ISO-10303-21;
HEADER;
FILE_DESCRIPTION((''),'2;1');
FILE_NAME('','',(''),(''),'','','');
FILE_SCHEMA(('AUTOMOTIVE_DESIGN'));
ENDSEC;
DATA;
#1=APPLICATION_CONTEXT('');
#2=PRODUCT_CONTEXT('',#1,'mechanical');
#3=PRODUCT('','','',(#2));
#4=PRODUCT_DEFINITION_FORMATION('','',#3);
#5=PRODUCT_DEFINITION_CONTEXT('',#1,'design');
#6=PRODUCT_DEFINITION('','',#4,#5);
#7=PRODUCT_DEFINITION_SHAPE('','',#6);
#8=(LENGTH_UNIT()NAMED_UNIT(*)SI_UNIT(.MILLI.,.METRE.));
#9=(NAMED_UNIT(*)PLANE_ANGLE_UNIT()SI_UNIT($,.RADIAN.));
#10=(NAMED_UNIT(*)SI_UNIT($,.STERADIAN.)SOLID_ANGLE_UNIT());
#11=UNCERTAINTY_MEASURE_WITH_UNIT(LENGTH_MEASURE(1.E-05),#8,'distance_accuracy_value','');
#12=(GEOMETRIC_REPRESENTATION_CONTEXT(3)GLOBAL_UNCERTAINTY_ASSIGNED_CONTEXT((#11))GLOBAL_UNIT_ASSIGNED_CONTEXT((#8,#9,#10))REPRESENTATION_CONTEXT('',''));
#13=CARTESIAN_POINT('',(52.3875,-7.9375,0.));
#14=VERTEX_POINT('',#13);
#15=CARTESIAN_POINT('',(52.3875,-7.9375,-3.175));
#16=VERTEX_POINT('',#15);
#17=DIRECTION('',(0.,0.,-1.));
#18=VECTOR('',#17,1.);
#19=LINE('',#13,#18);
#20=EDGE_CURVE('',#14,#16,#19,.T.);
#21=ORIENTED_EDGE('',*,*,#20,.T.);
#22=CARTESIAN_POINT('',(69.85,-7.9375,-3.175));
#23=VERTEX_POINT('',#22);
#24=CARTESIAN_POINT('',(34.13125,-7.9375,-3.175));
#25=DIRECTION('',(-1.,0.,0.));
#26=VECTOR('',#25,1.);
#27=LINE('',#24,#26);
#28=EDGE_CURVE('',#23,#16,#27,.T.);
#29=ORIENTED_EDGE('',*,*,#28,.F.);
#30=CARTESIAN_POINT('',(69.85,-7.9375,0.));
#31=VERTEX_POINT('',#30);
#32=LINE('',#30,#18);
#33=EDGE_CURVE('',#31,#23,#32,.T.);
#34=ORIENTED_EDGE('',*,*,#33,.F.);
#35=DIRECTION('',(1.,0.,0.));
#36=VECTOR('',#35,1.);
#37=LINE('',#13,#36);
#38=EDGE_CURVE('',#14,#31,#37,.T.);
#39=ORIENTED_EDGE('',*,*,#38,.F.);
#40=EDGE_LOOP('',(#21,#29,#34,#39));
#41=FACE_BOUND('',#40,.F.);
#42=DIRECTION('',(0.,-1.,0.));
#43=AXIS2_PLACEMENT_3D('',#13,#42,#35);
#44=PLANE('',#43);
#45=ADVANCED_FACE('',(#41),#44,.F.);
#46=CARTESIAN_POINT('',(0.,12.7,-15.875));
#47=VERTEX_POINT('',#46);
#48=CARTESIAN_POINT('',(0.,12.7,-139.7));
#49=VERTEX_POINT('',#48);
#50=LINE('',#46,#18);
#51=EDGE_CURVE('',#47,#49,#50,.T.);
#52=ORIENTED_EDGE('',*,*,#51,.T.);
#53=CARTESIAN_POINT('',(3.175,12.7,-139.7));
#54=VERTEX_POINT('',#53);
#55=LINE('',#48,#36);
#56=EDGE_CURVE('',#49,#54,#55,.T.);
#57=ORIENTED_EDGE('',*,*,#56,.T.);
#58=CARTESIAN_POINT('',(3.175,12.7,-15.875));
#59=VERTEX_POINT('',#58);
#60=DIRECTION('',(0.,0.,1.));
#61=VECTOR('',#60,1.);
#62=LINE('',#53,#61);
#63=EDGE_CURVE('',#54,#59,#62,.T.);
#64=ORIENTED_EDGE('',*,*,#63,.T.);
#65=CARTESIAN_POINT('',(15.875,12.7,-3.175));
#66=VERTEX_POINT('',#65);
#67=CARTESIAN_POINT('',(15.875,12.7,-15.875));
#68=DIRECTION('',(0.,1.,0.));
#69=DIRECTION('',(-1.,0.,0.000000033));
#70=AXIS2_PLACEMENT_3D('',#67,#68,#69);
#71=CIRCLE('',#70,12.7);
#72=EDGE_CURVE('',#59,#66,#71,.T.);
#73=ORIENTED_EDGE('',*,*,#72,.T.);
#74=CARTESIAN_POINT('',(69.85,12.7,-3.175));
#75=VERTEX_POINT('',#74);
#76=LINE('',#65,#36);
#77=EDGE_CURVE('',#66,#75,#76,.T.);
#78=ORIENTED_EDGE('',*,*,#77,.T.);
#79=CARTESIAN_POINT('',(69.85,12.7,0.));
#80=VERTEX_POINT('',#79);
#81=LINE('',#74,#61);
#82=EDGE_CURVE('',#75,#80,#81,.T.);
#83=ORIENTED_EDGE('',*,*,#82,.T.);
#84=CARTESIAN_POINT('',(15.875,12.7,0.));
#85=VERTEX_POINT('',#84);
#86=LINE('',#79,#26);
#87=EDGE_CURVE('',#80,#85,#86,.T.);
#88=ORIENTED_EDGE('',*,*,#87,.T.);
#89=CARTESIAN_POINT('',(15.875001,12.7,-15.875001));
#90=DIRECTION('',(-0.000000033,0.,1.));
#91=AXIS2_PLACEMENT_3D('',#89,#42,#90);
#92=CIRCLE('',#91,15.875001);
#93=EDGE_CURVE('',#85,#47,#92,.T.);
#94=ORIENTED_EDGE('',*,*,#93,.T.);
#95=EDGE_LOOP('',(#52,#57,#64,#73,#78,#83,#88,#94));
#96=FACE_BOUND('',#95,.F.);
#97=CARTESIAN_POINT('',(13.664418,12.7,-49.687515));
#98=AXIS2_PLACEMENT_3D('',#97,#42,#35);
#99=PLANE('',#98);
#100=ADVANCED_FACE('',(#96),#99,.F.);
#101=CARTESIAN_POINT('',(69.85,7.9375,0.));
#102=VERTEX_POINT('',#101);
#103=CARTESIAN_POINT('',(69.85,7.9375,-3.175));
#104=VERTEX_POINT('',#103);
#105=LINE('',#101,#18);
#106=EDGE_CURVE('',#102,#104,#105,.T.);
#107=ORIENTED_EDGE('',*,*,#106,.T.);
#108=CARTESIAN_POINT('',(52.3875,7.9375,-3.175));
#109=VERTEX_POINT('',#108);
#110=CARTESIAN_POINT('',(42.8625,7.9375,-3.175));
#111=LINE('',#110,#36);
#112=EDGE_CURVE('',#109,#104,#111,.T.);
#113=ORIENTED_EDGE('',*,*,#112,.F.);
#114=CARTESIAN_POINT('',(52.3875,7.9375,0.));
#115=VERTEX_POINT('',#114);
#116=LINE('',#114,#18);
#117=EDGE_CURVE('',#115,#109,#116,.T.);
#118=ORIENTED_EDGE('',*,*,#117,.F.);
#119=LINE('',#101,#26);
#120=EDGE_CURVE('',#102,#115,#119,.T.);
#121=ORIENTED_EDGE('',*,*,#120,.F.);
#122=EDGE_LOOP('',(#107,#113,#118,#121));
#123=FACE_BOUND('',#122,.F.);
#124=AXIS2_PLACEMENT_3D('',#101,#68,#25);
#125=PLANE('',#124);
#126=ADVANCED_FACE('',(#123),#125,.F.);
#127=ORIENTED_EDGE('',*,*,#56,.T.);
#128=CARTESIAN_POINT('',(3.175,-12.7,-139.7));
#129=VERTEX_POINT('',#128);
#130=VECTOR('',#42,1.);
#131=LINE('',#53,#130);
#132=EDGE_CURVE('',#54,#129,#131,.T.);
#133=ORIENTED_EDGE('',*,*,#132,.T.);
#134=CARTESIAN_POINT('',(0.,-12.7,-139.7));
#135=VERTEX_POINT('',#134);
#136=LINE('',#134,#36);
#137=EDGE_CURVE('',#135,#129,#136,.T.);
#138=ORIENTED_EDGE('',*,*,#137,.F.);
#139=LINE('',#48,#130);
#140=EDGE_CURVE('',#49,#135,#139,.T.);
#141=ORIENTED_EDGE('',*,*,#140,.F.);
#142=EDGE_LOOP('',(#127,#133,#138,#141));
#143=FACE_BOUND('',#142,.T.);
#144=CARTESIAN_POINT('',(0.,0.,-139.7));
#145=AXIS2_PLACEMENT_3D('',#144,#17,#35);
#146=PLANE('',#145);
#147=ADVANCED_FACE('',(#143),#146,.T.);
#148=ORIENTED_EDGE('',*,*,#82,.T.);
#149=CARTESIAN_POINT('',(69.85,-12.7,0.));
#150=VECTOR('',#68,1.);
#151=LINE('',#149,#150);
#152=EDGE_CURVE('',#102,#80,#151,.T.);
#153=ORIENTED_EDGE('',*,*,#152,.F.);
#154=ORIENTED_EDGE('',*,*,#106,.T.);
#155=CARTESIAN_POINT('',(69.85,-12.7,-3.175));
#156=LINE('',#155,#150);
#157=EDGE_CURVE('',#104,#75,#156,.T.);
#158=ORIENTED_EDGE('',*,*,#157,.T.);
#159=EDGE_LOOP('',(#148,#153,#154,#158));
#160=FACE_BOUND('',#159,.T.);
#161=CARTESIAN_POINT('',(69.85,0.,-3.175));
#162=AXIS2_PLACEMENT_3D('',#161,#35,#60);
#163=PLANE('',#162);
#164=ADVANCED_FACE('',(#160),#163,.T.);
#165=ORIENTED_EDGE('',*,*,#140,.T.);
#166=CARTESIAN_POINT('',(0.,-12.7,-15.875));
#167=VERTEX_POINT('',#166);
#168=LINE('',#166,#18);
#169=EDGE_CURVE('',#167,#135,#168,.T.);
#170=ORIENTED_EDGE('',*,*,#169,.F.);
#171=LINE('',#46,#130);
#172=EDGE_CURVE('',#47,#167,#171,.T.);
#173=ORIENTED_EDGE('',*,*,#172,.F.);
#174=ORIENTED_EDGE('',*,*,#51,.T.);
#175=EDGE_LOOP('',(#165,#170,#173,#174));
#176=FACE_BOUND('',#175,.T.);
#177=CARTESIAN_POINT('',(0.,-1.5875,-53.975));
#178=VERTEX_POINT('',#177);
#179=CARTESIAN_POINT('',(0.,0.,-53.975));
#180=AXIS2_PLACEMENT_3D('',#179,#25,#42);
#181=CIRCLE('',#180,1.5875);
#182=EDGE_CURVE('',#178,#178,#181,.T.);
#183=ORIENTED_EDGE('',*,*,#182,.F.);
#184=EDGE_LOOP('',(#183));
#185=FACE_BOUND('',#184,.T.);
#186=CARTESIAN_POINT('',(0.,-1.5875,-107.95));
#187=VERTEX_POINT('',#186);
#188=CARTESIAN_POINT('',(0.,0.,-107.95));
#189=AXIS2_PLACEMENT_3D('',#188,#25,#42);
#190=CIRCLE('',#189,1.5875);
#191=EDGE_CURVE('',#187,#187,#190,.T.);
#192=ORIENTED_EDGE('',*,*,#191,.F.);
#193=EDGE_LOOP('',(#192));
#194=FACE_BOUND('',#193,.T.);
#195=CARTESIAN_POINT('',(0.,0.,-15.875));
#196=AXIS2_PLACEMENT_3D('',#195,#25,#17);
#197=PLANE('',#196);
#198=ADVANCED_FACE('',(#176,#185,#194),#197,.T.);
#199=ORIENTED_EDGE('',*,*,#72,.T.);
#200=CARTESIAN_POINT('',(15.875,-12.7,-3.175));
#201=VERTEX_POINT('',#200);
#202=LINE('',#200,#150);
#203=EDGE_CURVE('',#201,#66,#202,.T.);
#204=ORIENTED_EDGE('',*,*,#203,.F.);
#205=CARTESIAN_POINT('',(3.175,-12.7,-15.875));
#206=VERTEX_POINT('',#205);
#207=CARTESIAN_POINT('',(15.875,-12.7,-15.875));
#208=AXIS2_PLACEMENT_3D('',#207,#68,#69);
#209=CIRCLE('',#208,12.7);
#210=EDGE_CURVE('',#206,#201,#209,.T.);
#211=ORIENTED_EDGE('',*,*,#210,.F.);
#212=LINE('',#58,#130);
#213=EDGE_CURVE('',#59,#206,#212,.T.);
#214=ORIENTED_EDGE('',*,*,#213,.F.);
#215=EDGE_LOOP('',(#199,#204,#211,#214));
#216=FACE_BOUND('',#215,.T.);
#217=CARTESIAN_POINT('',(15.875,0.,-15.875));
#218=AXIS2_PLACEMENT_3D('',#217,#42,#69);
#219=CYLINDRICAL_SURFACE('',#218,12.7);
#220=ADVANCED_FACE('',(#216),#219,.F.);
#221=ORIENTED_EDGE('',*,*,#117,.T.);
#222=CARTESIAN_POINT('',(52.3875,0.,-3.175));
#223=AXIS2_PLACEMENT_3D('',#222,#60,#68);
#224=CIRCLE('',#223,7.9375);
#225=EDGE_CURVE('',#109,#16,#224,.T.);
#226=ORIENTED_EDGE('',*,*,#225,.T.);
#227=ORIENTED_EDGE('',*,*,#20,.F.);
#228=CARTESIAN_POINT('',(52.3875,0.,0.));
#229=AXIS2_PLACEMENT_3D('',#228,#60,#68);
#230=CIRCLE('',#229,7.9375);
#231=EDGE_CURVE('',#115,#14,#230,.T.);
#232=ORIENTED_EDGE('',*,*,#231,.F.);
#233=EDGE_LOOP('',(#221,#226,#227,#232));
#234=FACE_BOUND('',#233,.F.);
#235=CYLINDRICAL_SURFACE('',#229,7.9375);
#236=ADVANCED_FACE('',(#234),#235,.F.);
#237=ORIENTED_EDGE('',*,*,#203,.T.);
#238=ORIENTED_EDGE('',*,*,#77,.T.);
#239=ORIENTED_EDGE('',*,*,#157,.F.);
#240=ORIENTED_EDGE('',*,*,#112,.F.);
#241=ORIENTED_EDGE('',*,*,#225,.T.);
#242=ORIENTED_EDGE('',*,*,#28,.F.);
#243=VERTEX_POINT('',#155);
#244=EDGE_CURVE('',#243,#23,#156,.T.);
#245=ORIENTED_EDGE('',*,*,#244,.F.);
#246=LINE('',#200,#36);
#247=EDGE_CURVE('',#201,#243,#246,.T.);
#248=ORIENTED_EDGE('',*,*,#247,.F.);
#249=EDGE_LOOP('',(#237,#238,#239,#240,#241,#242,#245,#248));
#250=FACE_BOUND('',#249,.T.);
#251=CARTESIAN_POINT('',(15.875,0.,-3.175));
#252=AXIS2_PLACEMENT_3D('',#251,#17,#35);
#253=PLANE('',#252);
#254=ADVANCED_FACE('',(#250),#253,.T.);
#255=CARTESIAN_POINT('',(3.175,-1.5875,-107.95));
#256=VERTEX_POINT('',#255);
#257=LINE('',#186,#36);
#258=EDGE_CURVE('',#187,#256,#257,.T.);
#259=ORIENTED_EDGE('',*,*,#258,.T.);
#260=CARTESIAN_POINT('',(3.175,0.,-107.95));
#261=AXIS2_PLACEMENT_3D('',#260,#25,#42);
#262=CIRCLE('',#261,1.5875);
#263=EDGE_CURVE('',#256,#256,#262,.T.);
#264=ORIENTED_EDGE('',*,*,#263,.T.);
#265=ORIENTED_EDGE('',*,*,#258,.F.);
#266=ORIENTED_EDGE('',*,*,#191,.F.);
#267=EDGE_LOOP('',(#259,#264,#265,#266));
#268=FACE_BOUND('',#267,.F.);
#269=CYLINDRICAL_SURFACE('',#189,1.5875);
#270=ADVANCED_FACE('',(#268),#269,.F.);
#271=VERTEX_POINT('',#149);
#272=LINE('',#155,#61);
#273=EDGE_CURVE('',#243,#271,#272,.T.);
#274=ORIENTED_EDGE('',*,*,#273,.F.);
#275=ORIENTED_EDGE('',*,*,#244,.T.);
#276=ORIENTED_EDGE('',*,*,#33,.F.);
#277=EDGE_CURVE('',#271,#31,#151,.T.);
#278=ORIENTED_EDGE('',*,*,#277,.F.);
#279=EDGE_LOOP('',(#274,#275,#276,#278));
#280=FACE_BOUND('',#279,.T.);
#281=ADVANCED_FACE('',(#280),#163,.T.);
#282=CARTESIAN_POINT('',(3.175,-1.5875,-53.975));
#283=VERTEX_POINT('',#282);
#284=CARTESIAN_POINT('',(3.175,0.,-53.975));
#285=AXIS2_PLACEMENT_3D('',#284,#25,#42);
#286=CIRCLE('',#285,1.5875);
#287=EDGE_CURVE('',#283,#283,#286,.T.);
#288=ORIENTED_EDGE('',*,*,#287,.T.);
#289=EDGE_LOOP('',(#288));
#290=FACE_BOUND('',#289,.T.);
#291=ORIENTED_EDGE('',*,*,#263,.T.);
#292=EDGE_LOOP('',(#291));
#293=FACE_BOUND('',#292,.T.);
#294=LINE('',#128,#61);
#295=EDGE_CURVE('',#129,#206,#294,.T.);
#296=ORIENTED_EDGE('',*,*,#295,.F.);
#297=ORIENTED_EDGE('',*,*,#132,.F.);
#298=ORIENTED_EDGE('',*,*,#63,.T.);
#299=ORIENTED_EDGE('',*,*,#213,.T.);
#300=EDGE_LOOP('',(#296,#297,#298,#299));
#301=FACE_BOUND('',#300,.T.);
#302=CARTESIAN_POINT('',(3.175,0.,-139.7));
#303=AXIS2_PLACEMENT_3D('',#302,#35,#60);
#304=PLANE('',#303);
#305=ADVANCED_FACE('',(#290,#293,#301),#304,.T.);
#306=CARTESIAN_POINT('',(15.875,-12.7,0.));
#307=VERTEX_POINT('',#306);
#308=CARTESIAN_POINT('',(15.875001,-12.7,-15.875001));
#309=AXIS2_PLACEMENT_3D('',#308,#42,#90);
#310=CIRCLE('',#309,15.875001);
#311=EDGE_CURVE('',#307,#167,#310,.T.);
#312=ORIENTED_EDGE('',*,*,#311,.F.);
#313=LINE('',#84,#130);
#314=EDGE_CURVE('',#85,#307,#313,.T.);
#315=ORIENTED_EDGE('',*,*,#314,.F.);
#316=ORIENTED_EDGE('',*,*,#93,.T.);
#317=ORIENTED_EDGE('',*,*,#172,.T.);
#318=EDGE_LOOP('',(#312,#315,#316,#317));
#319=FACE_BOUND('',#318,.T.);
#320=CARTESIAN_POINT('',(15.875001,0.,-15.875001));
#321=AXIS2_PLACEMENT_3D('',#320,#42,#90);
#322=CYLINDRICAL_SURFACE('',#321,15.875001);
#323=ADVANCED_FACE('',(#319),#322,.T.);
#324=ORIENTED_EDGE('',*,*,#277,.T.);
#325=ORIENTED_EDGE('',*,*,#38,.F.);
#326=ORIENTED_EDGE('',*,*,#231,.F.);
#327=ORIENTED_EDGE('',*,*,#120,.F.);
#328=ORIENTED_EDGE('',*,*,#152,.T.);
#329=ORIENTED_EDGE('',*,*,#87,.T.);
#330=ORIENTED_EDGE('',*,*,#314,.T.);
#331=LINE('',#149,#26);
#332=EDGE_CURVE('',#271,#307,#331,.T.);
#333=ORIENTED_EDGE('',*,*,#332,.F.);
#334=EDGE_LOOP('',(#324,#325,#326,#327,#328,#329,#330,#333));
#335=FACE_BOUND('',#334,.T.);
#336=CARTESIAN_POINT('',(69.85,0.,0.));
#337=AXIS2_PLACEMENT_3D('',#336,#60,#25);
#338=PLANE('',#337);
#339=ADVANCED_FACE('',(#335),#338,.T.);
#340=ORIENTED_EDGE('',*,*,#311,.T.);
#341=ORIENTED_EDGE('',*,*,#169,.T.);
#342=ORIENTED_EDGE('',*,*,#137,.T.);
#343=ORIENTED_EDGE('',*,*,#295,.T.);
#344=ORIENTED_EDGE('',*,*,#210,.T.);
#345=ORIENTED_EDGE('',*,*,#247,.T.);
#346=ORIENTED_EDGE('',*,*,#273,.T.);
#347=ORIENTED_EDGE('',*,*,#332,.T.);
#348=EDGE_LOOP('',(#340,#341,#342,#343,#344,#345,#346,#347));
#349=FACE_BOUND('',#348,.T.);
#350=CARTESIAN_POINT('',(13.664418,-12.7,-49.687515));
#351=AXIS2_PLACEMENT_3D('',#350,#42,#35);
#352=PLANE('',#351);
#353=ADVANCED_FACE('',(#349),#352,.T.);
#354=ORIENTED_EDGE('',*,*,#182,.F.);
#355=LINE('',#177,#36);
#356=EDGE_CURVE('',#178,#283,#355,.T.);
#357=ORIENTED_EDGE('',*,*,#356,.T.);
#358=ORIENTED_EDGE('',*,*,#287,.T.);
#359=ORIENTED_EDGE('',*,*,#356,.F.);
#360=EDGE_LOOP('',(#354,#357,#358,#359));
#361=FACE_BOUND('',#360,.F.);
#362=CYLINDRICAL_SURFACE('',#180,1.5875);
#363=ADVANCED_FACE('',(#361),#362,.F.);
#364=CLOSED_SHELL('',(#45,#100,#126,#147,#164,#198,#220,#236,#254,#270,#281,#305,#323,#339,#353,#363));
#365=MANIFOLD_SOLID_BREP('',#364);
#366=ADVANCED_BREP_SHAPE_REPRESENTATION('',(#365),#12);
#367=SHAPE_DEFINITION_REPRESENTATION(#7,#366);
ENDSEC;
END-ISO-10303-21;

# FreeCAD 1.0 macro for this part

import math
import FreeCAD as App
import Part
import Sketcher
Q = App.Units.Quantity

doc = App.newDocument("Part")
body = doc.addObject("PartDesign::Body", "Body")

sketch1 = body.newObject("Sketcher::SketchObject", "Sketch")
sketch1.AttachmentSupport = (doc.getObject("XZ_Plane"), [""])
sketch1.MapMode = "FlatFace"
sketch1.addGeometry([
    Part.LineSegment(App.Vector(69.8, 0, 0), App.Vector(15.9, 0, 0)),
    Part.ArcOfCircle(Part.Circle(App.Vector(15.9, -15.9, 0), App.Vector(0, 0, 1), 15.9), math.radians(90), math.radians(180)),
    Part.LineSegment(App.Vector(0, -15.9, 0), App.Vector(0, -139.7, 0)),
    Part.LineSegment(App.Vector(0, -139.7, 0), App.Vector(3.2, -139.7, 0)),
    Part.LineSegment(App.Vector(3.2, -139.7, 0), App.Vector(3.2, -15.9, 0)),
    Part.ArcOfCircle(Part.Circle(App.Vector(15.9, -15.9, 0), App.Vector(0, 0, 1), 12.7), math.radians(90), math.radians(180)),
    Part.LineSegment(App.Vector(15.9, -3.2, 0), App.Vector(69.8, -3.2, 0)),
    Part.LineSegment(App.Vector(69.8, -3.2, 0), App.Vector(69.8, 0, 0)),
], False)
sketch1.addConstraint([
    Sketcher.Constraint("Tangent", 0, 2, 1, 1),
    Sketcher.Constraint("Tangent", 1, 2, 2, 1),
    Sketcher.Constraint("Coincident", 2, 2, 3, 1),
    Sketcher.Constraint("Coincident", 3, 2, 4, 1),
    Sketcher.Constraint("Tangent", 4, 2, 5, 2),
    Sketcher.Constraint("Tangent", 5, 1, 6, 1),
    Sketcher.Constraint("Coincident", 6, 2, 7, 1),
    Sketcher.Constraint("Coincident", 7, 2, 0, 1),
    Sketcher.Constraint("Horizontal", 0),
    Sketcher.Constraint("Vertical", 2),
    Sketcher.Constraint("Horizontal", 3),
    Sketcher.Constraint("Vertical", 4),
    Sketcher.Constraint("Horizontal", 6),
    Sketcher.Constraint("Vertical", 7),
    Sketcher.Constraint("Coincident", 5, 3, 1, 3),
    Sketcher.Constraint("PointOnObject", 0, 2, -1),
    Sketcher.Constraint("PointOnObject", 1, 2, -2),
    Sketcher.Constraint("Radius", 5, Q("0.5 in")),
    Sketcher.Constraint("Radius", 1, Q("0.625 in")),
    Sketcher.Constraint("DistanceY", 2, 2, -1, 1, Q("5.5 in")),
    Sketcher.Constraint("DistanceX", 0, 2, 0, 1, Q("2.125 in")),
])
pad1 = body.newObject("PartDesign::Pad", "Pad")
pad1.Profile = sketch1
pad1.Length = Q("1 in")
pad1.Midplane = True

sketch2 = body.newObject("Sketcher::SketchObject", "Sketch001")
sketch2.AttachmentSupport = (doc.getObject("XY_Plane"), [""])
sketch2.MapMode = "FlatFace"
sketch2.addGeometry([
    Part.ArcOfCircle(Part.Circle(App.Vector(52, 0, 0), App.Vector(0, 0, 1), 8), math.radians(90), math.radians(270)),
    Part.LineSegment(App.Vector(52, -8, 0), App.Vector(70, -8, 0)),
    Part.LineSegment(App.Vector(70, -8, 0), App.Vector(70, 8, 0)),
    Part.LineSegment(App.Vector(70, 8, 0), App.Vector(52, 8, 0)),
], False)
sketch2.addConstraint([
    Sketcher.Constraint("Tangent", 0, 2, 1, 1),
    Sketcher.Constraint("Coincident", 1, 2, 2, 1),
    Sketcher.Constraint("Coincident", 2, 2, 3, 1),
    Sketcher.Constraint("Tangent", 3, 2, 0, 1),
    Sketcher.Constraint("Horizontal", 1),
    Sketcher.Constraint("Vertical", 2),
    Sketcher.Constraint("Horizontal", 3),
    Sketcher.Constraint("PointOnObject", 0, 3, -1),
    Sketcher.Constraint("Radius", 0, Q("0.3125 in")),
    Sketcher.Constraint("DistanceX", 1, 1, 1, 2, Q("0.6875 in")),
    Sketcher.Constraint("DistanceX", -1, 1, 1, 2, Q("2.75 in")),
])
pocket1 = body.newObject("PartDesign::Pocket", "Pocket")
pocket1.Profile = sketch2
pocket1.Length = Q("1 in")

sketch3 = body.newObject("Sketcher::SketchObject", "Sketch002")
sketch3.AttachmentSupport = (doc.getObject("YZ_Plane"), [""])
sketch3.MapMode = "FlatFace"
sketch3.addGeometry([
    Part.Circle(App.Vector(0, -54, 0), App.Vector(0, 0, 1), 1.6),
    Part.Circle(App.Vector(0, -108, 0), App.Vector(0, 0, 1), 1.6),
], False)
sketch3.addConstraint([
    Sketcher.Constraint("Equal", 0, 1),
    Sketcher.Constraint("PointOnObject", 0, 3, -2),
    Sketcher.Constraint("PointOnObject", 1, 3, -2),
    Sketcher.Constraint("Diameter", 0, Q("0.125 in")),
    Sketcher.Constraint("DistanceY", 1, 3, -1, 1, Q("4.25 in")),
    Sketcher.Constraint("DistanceY", 0, 3, -1, 1, Q("2.125 in")),
])
pocket2 = body.newObject("PartDesign::Pocket", "Pocket001")
pocket2.Profile = sketch3
pocket2.Length = Q("1 in")
pocket2.Reversed = True

doc.recompute()
